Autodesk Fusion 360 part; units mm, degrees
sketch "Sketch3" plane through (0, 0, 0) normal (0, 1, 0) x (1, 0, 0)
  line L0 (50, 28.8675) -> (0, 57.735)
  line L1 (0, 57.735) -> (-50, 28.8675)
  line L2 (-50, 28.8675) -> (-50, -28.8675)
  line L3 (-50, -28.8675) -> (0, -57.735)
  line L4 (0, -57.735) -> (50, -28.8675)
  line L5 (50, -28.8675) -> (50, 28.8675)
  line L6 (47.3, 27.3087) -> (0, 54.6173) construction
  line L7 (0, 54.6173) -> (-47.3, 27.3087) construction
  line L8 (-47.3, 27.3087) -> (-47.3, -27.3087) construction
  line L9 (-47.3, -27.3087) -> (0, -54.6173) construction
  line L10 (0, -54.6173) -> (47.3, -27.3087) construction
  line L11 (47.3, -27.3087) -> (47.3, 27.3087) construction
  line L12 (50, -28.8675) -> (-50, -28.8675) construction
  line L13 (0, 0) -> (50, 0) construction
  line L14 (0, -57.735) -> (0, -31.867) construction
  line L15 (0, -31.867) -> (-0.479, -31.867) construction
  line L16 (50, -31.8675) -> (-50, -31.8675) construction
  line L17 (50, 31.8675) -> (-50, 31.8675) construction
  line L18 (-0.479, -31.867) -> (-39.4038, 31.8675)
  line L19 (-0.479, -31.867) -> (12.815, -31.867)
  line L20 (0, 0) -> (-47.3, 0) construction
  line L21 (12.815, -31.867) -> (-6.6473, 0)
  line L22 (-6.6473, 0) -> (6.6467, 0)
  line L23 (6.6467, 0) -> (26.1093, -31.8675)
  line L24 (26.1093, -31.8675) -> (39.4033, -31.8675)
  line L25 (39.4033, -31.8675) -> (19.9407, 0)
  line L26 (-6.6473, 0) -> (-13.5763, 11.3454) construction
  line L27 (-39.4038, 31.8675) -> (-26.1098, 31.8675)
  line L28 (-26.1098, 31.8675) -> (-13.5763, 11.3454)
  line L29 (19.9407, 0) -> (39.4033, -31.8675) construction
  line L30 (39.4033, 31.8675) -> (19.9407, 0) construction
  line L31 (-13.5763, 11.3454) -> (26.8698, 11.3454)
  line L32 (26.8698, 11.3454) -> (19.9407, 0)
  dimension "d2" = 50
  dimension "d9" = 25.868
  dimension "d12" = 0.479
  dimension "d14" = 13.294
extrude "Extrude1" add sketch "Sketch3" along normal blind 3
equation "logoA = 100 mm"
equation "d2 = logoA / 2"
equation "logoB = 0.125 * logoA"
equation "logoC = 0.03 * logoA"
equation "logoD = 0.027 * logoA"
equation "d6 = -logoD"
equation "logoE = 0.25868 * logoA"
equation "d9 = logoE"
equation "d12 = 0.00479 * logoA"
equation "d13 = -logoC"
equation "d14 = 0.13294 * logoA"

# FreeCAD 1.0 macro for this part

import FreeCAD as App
import Part
import Sketcher
from FreeCAD import Vector
Q = App.Units.Quantity


def add_polygon(sketch, points):
    """Adds a closed chain of lines whose ends are joined by coincident constraints."""
    first, n = sketch.GeometryCount, len(points)
    for a, b in zip(points, points[1:] + points[:1]):
        sketch.addGeometry(Part.LineSegment(App.Vector(*a, 0), App.Vector(*b, 0)), False)
    for i in range(n):
        sketch.addConstraint(Sketcher.Constraint("Coincident", first + i, 2, first + (i + 1) % n, 1))

doc = App.newDocument("Part")
body = doc.addObject("PartDesign::Body", "Body")

# Sketch on XZ plane
sketch1 = body.newObject("Sketcher::SketchObject", "Sketch")
sketch1.AttachmentSupport = (doc.getObject("XZ_Plane"), [""])
sketch1.MapMode = "FlatFace"
add_polygon(sketch1, [(50, 29), (50, -29), (0, -58), (-50, -29), (-50, 29), (0, 58)])  # lines 0-5
add_polygon(sketch1, [(13, 32), (0, 32), (-39, -32), (-26, -32), (-14, -11), (27, -11), (20, 0), (39, 32), (26, 32), (7, 0), (-7, 0)])  # lines 6-16
sketch1.addConstraint([
    Sketcher.Constraint("Vertical", 0),
    Sketcher.Constraint("Vertical", 3),
    Sketcher.Constraint("Horizontal", 6),
    Sketcher.Constraint("Horizontal", 8),
    Sketcher.Constraint("Horizontal", 10),
    Sketcher.Constraint("Horizontal", 13),
    Sketcher.Constraint("Horizontal", 15),
    Sketcher.Constraint("Symmetric", 0, 2, 3, 2, -1, 1),
    Sketcher.Constraint("Symmetric", 1, 2, 4, 2, -1, 1),
    Sketcher.Constraint("PointOnObject", 1, 2, -2),
    Sketcher.Constraint("PointOnObject", 11, 2, -1),
    Sketcher.Constraint("PointOnObject", 14, 2, -1),
    Sketcher.Constraint("Parallel", 2, 5),
    Sketcher.Constraint("Parallel", 7, 9),
    Sketcher.Constraint("Parallel", 9, 12),
    Sketcher.Constraint("Parallel", 12, 14),
    Sketcher.Constraint("Parallel", 14, 16),
    Sketcher.Constraint("Horizontal", 0, 2, 2, 2),
    Sketcher.Constraint("Equal", 6, 8),
    Sketcher.Constraint("Equal", 8, 13),
    Sketcher.Constraint("Equal", 13, 15),
    Sketcher.Constraint("DistanceX", -1, 1, 0, 2, Q("50 mm")),
    Sketcher.Constraint("DistanceX", 6, 2, 6, 1, Q("13.294 mm")),
    Sketcher.Constraint("Angle", 1, Q("-150 deg")),
    Sketcher.Constraint("Distance", 11, Q("13.294 mm")),
    Sketcher.Constraint("DistanceX", 6, 2, -1, 1, Q("0.479 mm")),
    Sketcher.Constraint("DistanceY", 6, 2, 4, 2, Q("25.868 mm")),
    Sketcher.Constraint("DistanceY", 7, 2, 2, 2, Q("3 mm")),
    Sketcher.Constraint("DistanceY", 5, 2, 12, 2, Q("3 mm")),
    Sketcher.Constraint("DistanceX", 10, 1, 10, 2, Q("40.446 mm")),
    Sketcher.Constraint("DistanceY", 0, 2, 0, 1, Q("57.735 mm")),
    Sketcher.Constraint("DistanceY", 8, 2, 9, 2, Q("20.522 mm")),
])
pad1 = body.newObject("PartDesign::Pad", "Pad")
pad1.Profile = sketch1
pad1.Length = 3
pad1.Reversed = True

doc.recompute()
